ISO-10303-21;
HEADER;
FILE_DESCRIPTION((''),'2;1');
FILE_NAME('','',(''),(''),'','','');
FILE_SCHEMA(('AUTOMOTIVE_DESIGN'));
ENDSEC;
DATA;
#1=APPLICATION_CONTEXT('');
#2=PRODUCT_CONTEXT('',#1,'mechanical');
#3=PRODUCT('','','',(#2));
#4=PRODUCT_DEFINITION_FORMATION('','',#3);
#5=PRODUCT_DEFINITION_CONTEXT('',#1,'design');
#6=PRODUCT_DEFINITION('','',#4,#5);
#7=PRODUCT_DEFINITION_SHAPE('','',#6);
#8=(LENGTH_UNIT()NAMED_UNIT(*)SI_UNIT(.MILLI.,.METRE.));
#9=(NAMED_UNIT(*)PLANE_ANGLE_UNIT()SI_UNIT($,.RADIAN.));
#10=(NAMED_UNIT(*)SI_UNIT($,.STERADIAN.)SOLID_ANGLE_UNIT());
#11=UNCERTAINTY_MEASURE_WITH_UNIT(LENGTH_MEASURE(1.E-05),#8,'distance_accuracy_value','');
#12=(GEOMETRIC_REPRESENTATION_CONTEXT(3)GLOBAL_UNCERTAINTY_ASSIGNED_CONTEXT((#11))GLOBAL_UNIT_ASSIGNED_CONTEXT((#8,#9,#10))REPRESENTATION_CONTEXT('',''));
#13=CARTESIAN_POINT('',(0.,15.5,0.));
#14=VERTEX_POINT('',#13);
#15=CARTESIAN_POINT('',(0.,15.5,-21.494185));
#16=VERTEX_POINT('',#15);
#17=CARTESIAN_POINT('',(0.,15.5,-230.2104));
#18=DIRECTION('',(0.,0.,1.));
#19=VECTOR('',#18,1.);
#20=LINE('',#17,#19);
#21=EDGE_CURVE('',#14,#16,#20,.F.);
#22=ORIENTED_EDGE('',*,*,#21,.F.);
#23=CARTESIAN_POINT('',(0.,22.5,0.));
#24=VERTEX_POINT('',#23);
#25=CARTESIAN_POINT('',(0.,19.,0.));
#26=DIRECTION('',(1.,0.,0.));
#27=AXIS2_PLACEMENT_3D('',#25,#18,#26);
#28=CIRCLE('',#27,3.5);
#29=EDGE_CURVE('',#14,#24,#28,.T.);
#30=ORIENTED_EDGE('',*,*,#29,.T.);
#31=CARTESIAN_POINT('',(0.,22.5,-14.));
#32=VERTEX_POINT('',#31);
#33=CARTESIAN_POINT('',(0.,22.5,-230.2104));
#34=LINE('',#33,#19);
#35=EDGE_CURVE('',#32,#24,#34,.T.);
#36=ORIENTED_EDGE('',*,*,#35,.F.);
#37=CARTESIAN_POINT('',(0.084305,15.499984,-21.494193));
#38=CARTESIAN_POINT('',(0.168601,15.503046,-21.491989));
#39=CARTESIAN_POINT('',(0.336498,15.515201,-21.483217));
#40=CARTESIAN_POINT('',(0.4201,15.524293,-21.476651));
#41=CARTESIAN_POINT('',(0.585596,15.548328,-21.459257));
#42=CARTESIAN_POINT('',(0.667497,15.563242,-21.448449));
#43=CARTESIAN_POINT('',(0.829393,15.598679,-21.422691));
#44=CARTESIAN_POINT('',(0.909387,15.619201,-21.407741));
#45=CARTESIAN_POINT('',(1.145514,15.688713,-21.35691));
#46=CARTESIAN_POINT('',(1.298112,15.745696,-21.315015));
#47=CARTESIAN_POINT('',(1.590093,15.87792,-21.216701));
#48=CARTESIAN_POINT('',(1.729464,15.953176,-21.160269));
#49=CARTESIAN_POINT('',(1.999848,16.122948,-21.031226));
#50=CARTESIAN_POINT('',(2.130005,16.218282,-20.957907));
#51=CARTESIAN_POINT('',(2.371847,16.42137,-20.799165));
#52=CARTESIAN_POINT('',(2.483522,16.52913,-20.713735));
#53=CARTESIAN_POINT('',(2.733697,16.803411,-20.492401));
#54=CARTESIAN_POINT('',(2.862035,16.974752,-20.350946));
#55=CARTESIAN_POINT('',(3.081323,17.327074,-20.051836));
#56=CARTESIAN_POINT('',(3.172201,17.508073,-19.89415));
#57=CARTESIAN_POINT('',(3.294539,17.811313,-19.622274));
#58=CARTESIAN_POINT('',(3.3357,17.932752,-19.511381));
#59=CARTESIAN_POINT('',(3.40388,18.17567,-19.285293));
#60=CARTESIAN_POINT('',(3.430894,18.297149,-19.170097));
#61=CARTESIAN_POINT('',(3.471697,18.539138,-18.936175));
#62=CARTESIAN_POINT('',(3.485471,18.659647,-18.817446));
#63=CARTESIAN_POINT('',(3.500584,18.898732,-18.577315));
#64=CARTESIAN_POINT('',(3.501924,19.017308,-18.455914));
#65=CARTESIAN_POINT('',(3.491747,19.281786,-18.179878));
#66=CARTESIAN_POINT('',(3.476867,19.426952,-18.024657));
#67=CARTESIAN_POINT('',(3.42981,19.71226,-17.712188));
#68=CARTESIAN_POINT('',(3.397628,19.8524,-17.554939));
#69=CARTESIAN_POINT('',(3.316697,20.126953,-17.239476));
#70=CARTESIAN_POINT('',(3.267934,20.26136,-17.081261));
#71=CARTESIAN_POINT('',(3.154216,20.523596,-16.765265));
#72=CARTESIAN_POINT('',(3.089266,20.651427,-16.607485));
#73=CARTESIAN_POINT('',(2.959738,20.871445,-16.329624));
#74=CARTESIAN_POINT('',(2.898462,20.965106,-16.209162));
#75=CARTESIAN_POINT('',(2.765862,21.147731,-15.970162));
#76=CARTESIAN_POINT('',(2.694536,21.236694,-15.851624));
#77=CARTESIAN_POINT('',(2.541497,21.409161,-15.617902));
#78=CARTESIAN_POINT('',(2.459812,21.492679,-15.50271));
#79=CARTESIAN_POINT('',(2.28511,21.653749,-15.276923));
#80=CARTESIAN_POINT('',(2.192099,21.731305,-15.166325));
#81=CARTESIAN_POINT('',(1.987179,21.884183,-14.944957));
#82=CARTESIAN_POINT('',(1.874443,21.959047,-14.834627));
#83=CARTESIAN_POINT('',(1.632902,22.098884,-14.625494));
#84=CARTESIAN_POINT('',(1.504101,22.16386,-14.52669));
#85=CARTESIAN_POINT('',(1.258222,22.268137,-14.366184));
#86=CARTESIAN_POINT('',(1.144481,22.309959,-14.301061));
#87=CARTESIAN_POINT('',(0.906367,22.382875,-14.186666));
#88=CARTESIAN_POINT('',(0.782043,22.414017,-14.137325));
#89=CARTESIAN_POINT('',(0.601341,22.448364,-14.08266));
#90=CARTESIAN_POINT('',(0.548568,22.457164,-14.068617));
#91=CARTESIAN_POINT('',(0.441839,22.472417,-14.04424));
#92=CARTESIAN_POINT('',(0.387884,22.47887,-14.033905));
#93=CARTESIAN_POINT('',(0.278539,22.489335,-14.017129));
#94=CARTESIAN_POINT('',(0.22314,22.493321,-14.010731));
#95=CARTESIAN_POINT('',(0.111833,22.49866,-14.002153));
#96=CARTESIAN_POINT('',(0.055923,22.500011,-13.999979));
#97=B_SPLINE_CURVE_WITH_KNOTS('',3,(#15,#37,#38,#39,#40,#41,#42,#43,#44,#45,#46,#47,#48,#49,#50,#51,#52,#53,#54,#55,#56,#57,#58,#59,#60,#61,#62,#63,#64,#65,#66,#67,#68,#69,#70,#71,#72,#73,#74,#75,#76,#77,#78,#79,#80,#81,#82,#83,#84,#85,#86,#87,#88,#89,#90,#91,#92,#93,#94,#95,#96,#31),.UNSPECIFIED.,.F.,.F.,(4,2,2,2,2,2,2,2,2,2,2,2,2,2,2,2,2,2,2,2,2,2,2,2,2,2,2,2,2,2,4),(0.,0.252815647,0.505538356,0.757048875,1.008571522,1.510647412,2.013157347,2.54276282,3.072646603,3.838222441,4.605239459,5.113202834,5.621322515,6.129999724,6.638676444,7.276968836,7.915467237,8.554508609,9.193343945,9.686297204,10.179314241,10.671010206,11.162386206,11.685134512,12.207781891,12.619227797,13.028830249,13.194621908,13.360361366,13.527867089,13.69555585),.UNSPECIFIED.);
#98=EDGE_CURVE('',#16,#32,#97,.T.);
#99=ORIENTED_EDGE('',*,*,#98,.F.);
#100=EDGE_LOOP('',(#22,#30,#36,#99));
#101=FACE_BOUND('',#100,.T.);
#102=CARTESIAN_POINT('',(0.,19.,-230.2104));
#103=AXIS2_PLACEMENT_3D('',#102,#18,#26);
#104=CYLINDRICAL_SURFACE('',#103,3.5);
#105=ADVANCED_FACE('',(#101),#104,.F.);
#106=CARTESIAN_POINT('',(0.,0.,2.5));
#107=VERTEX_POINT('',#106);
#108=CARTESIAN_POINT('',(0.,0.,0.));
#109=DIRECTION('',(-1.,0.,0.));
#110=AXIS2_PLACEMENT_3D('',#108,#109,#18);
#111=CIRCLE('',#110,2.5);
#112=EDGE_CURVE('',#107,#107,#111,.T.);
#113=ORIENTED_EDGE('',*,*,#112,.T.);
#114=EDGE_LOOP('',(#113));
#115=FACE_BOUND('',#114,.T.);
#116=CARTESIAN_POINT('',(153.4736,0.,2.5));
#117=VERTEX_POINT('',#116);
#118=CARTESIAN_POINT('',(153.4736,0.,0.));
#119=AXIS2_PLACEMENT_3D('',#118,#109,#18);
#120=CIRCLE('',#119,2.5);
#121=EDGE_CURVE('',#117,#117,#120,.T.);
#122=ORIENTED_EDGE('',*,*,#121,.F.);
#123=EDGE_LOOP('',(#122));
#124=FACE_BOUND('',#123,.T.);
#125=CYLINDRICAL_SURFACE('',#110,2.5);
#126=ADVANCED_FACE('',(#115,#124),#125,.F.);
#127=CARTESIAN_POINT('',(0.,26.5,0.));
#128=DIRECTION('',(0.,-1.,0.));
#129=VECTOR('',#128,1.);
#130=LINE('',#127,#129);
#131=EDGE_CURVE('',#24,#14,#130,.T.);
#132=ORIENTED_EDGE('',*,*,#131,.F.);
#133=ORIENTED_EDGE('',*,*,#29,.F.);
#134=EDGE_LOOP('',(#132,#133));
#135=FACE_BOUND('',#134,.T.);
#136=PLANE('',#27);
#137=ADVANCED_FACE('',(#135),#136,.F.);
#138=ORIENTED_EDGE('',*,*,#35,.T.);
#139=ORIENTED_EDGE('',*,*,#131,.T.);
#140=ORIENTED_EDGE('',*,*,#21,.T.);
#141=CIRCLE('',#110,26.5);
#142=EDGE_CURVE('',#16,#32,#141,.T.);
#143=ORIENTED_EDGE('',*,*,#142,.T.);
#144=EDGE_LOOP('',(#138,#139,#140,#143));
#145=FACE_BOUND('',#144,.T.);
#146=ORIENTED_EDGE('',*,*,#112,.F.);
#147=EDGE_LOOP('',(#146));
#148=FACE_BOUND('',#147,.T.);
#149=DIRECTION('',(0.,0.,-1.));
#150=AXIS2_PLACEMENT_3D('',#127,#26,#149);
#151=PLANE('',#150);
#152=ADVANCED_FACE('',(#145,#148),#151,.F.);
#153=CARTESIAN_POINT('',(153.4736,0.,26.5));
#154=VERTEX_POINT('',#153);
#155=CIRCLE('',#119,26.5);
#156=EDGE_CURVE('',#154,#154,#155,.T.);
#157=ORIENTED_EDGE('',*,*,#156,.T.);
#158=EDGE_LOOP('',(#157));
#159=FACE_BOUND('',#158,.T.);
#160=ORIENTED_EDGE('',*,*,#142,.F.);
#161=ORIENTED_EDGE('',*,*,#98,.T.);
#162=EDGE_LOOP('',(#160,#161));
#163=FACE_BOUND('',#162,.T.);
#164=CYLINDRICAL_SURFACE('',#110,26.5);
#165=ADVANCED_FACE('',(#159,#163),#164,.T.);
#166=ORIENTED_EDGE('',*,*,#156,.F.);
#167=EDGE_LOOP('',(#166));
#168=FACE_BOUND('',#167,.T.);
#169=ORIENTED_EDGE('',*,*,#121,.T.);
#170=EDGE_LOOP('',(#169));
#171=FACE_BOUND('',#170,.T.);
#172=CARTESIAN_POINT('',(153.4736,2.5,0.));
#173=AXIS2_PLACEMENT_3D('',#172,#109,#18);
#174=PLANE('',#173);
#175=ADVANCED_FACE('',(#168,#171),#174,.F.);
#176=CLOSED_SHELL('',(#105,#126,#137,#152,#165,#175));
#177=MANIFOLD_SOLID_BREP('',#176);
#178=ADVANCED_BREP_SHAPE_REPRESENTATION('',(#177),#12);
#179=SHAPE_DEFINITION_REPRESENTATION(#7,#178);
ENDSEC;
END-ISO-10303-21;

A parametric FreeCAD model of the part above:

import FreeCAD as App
import Part
import Sketcher
from FreeCAD import Vector
Q = App.Units.Quantity

doc = App.newDocument("Part")
body = doc.addObject("PartDesign::Body", "Body")

# Sketch on XY plane
sketch1 = body.newObject("Sketcher::SketchObject", "Sketch")
sketch1.AttachmentSupport = (doc.getObject("XY_Plane"), [""])
sketch1.MapMode = "FlatFace"
sketch1.addGeometry([
    Part.LineSegment(Vector(0, 26.5, 0), Vector(0, 2.5, 0)),
    Part.LineSegment(Vector(0, 2.5, 0), Vector(153.4736, 2.5, 0)),
    Part.LineSegment(Vector(153.4736, 2.5, 0), Vector(153.4736, 26.5, 0)),
    Part.LineSegment(Vector(153.4736, 26.5, 0), Vector(0, 26.5, 0)),
], False)
sketch1.addConstraint([
    Sketcher.Constraint("Coincident", 0, 2, 1, 1),
    Sketcher.Constraint("Coincident", 1, 2, 2, 1),
    Sketcher.Constraint("Coincident", 2, 2, 3, 1),
    Sketcher.Constraint("Coincident", 3, 2, 0, 1),
    Sketcher.Constraint("Vertical", 0),
    Sketcher.Constraint("Horizontal", 1),
    Sketcher.Constraint("Vertical", 2),
    Sketcher.Constraint("Horizontal", 3),
    Sketcher.Constraint("PointOnObject", 0, 2, -2),
    Sketcher.Constraint("DistanceY", 0, 2, 0, 1, Q("24 mm")),
    Sketcher.Constraint("DistanceY", -1, 1, 0, 2, Q("2.5 mm")),
    Sketcher.Constraint("DistanceX", 1, 1, 1, 2, Q("153.4736 mm")),
])
revolution = body.newObject("PartDesign::Revolution", "Revolution")
revolution.Profile = sketch1
revolution.ReferenceAxis = (sketch1, ["H_Axis"])
revolution.Angle = 360

# Sketch on XY plane
sketch2 = body.newObject("Sketcher::SketchObject", "Sketch001")
sketch2.AttachmentSupport = (doc.getObject("XY_Plane"), [""])
sketch2.MapMode = "FlatFace"
sketch2.addGeometry(Part.Circle(Vector(0, 19, 0), Vector(0, 0, 1), 3.5), False)
sketch2.addConstraint([
    Sketcher.Constraint("PointOnObject", 0, 3, -2),
    Sketcher.Constraint("Diameter", 0, Q("7 mm")),
    Sketcher.Constraint("DistanceY", -1, 1, 0, 3, Q("19 mm")),
])
pocket1 = body.newObject("PartDesign::Pocket", "Pocket")
pocket1.Profile = sketch2
pocket1.Length = 230.2104

doc.recompute()
